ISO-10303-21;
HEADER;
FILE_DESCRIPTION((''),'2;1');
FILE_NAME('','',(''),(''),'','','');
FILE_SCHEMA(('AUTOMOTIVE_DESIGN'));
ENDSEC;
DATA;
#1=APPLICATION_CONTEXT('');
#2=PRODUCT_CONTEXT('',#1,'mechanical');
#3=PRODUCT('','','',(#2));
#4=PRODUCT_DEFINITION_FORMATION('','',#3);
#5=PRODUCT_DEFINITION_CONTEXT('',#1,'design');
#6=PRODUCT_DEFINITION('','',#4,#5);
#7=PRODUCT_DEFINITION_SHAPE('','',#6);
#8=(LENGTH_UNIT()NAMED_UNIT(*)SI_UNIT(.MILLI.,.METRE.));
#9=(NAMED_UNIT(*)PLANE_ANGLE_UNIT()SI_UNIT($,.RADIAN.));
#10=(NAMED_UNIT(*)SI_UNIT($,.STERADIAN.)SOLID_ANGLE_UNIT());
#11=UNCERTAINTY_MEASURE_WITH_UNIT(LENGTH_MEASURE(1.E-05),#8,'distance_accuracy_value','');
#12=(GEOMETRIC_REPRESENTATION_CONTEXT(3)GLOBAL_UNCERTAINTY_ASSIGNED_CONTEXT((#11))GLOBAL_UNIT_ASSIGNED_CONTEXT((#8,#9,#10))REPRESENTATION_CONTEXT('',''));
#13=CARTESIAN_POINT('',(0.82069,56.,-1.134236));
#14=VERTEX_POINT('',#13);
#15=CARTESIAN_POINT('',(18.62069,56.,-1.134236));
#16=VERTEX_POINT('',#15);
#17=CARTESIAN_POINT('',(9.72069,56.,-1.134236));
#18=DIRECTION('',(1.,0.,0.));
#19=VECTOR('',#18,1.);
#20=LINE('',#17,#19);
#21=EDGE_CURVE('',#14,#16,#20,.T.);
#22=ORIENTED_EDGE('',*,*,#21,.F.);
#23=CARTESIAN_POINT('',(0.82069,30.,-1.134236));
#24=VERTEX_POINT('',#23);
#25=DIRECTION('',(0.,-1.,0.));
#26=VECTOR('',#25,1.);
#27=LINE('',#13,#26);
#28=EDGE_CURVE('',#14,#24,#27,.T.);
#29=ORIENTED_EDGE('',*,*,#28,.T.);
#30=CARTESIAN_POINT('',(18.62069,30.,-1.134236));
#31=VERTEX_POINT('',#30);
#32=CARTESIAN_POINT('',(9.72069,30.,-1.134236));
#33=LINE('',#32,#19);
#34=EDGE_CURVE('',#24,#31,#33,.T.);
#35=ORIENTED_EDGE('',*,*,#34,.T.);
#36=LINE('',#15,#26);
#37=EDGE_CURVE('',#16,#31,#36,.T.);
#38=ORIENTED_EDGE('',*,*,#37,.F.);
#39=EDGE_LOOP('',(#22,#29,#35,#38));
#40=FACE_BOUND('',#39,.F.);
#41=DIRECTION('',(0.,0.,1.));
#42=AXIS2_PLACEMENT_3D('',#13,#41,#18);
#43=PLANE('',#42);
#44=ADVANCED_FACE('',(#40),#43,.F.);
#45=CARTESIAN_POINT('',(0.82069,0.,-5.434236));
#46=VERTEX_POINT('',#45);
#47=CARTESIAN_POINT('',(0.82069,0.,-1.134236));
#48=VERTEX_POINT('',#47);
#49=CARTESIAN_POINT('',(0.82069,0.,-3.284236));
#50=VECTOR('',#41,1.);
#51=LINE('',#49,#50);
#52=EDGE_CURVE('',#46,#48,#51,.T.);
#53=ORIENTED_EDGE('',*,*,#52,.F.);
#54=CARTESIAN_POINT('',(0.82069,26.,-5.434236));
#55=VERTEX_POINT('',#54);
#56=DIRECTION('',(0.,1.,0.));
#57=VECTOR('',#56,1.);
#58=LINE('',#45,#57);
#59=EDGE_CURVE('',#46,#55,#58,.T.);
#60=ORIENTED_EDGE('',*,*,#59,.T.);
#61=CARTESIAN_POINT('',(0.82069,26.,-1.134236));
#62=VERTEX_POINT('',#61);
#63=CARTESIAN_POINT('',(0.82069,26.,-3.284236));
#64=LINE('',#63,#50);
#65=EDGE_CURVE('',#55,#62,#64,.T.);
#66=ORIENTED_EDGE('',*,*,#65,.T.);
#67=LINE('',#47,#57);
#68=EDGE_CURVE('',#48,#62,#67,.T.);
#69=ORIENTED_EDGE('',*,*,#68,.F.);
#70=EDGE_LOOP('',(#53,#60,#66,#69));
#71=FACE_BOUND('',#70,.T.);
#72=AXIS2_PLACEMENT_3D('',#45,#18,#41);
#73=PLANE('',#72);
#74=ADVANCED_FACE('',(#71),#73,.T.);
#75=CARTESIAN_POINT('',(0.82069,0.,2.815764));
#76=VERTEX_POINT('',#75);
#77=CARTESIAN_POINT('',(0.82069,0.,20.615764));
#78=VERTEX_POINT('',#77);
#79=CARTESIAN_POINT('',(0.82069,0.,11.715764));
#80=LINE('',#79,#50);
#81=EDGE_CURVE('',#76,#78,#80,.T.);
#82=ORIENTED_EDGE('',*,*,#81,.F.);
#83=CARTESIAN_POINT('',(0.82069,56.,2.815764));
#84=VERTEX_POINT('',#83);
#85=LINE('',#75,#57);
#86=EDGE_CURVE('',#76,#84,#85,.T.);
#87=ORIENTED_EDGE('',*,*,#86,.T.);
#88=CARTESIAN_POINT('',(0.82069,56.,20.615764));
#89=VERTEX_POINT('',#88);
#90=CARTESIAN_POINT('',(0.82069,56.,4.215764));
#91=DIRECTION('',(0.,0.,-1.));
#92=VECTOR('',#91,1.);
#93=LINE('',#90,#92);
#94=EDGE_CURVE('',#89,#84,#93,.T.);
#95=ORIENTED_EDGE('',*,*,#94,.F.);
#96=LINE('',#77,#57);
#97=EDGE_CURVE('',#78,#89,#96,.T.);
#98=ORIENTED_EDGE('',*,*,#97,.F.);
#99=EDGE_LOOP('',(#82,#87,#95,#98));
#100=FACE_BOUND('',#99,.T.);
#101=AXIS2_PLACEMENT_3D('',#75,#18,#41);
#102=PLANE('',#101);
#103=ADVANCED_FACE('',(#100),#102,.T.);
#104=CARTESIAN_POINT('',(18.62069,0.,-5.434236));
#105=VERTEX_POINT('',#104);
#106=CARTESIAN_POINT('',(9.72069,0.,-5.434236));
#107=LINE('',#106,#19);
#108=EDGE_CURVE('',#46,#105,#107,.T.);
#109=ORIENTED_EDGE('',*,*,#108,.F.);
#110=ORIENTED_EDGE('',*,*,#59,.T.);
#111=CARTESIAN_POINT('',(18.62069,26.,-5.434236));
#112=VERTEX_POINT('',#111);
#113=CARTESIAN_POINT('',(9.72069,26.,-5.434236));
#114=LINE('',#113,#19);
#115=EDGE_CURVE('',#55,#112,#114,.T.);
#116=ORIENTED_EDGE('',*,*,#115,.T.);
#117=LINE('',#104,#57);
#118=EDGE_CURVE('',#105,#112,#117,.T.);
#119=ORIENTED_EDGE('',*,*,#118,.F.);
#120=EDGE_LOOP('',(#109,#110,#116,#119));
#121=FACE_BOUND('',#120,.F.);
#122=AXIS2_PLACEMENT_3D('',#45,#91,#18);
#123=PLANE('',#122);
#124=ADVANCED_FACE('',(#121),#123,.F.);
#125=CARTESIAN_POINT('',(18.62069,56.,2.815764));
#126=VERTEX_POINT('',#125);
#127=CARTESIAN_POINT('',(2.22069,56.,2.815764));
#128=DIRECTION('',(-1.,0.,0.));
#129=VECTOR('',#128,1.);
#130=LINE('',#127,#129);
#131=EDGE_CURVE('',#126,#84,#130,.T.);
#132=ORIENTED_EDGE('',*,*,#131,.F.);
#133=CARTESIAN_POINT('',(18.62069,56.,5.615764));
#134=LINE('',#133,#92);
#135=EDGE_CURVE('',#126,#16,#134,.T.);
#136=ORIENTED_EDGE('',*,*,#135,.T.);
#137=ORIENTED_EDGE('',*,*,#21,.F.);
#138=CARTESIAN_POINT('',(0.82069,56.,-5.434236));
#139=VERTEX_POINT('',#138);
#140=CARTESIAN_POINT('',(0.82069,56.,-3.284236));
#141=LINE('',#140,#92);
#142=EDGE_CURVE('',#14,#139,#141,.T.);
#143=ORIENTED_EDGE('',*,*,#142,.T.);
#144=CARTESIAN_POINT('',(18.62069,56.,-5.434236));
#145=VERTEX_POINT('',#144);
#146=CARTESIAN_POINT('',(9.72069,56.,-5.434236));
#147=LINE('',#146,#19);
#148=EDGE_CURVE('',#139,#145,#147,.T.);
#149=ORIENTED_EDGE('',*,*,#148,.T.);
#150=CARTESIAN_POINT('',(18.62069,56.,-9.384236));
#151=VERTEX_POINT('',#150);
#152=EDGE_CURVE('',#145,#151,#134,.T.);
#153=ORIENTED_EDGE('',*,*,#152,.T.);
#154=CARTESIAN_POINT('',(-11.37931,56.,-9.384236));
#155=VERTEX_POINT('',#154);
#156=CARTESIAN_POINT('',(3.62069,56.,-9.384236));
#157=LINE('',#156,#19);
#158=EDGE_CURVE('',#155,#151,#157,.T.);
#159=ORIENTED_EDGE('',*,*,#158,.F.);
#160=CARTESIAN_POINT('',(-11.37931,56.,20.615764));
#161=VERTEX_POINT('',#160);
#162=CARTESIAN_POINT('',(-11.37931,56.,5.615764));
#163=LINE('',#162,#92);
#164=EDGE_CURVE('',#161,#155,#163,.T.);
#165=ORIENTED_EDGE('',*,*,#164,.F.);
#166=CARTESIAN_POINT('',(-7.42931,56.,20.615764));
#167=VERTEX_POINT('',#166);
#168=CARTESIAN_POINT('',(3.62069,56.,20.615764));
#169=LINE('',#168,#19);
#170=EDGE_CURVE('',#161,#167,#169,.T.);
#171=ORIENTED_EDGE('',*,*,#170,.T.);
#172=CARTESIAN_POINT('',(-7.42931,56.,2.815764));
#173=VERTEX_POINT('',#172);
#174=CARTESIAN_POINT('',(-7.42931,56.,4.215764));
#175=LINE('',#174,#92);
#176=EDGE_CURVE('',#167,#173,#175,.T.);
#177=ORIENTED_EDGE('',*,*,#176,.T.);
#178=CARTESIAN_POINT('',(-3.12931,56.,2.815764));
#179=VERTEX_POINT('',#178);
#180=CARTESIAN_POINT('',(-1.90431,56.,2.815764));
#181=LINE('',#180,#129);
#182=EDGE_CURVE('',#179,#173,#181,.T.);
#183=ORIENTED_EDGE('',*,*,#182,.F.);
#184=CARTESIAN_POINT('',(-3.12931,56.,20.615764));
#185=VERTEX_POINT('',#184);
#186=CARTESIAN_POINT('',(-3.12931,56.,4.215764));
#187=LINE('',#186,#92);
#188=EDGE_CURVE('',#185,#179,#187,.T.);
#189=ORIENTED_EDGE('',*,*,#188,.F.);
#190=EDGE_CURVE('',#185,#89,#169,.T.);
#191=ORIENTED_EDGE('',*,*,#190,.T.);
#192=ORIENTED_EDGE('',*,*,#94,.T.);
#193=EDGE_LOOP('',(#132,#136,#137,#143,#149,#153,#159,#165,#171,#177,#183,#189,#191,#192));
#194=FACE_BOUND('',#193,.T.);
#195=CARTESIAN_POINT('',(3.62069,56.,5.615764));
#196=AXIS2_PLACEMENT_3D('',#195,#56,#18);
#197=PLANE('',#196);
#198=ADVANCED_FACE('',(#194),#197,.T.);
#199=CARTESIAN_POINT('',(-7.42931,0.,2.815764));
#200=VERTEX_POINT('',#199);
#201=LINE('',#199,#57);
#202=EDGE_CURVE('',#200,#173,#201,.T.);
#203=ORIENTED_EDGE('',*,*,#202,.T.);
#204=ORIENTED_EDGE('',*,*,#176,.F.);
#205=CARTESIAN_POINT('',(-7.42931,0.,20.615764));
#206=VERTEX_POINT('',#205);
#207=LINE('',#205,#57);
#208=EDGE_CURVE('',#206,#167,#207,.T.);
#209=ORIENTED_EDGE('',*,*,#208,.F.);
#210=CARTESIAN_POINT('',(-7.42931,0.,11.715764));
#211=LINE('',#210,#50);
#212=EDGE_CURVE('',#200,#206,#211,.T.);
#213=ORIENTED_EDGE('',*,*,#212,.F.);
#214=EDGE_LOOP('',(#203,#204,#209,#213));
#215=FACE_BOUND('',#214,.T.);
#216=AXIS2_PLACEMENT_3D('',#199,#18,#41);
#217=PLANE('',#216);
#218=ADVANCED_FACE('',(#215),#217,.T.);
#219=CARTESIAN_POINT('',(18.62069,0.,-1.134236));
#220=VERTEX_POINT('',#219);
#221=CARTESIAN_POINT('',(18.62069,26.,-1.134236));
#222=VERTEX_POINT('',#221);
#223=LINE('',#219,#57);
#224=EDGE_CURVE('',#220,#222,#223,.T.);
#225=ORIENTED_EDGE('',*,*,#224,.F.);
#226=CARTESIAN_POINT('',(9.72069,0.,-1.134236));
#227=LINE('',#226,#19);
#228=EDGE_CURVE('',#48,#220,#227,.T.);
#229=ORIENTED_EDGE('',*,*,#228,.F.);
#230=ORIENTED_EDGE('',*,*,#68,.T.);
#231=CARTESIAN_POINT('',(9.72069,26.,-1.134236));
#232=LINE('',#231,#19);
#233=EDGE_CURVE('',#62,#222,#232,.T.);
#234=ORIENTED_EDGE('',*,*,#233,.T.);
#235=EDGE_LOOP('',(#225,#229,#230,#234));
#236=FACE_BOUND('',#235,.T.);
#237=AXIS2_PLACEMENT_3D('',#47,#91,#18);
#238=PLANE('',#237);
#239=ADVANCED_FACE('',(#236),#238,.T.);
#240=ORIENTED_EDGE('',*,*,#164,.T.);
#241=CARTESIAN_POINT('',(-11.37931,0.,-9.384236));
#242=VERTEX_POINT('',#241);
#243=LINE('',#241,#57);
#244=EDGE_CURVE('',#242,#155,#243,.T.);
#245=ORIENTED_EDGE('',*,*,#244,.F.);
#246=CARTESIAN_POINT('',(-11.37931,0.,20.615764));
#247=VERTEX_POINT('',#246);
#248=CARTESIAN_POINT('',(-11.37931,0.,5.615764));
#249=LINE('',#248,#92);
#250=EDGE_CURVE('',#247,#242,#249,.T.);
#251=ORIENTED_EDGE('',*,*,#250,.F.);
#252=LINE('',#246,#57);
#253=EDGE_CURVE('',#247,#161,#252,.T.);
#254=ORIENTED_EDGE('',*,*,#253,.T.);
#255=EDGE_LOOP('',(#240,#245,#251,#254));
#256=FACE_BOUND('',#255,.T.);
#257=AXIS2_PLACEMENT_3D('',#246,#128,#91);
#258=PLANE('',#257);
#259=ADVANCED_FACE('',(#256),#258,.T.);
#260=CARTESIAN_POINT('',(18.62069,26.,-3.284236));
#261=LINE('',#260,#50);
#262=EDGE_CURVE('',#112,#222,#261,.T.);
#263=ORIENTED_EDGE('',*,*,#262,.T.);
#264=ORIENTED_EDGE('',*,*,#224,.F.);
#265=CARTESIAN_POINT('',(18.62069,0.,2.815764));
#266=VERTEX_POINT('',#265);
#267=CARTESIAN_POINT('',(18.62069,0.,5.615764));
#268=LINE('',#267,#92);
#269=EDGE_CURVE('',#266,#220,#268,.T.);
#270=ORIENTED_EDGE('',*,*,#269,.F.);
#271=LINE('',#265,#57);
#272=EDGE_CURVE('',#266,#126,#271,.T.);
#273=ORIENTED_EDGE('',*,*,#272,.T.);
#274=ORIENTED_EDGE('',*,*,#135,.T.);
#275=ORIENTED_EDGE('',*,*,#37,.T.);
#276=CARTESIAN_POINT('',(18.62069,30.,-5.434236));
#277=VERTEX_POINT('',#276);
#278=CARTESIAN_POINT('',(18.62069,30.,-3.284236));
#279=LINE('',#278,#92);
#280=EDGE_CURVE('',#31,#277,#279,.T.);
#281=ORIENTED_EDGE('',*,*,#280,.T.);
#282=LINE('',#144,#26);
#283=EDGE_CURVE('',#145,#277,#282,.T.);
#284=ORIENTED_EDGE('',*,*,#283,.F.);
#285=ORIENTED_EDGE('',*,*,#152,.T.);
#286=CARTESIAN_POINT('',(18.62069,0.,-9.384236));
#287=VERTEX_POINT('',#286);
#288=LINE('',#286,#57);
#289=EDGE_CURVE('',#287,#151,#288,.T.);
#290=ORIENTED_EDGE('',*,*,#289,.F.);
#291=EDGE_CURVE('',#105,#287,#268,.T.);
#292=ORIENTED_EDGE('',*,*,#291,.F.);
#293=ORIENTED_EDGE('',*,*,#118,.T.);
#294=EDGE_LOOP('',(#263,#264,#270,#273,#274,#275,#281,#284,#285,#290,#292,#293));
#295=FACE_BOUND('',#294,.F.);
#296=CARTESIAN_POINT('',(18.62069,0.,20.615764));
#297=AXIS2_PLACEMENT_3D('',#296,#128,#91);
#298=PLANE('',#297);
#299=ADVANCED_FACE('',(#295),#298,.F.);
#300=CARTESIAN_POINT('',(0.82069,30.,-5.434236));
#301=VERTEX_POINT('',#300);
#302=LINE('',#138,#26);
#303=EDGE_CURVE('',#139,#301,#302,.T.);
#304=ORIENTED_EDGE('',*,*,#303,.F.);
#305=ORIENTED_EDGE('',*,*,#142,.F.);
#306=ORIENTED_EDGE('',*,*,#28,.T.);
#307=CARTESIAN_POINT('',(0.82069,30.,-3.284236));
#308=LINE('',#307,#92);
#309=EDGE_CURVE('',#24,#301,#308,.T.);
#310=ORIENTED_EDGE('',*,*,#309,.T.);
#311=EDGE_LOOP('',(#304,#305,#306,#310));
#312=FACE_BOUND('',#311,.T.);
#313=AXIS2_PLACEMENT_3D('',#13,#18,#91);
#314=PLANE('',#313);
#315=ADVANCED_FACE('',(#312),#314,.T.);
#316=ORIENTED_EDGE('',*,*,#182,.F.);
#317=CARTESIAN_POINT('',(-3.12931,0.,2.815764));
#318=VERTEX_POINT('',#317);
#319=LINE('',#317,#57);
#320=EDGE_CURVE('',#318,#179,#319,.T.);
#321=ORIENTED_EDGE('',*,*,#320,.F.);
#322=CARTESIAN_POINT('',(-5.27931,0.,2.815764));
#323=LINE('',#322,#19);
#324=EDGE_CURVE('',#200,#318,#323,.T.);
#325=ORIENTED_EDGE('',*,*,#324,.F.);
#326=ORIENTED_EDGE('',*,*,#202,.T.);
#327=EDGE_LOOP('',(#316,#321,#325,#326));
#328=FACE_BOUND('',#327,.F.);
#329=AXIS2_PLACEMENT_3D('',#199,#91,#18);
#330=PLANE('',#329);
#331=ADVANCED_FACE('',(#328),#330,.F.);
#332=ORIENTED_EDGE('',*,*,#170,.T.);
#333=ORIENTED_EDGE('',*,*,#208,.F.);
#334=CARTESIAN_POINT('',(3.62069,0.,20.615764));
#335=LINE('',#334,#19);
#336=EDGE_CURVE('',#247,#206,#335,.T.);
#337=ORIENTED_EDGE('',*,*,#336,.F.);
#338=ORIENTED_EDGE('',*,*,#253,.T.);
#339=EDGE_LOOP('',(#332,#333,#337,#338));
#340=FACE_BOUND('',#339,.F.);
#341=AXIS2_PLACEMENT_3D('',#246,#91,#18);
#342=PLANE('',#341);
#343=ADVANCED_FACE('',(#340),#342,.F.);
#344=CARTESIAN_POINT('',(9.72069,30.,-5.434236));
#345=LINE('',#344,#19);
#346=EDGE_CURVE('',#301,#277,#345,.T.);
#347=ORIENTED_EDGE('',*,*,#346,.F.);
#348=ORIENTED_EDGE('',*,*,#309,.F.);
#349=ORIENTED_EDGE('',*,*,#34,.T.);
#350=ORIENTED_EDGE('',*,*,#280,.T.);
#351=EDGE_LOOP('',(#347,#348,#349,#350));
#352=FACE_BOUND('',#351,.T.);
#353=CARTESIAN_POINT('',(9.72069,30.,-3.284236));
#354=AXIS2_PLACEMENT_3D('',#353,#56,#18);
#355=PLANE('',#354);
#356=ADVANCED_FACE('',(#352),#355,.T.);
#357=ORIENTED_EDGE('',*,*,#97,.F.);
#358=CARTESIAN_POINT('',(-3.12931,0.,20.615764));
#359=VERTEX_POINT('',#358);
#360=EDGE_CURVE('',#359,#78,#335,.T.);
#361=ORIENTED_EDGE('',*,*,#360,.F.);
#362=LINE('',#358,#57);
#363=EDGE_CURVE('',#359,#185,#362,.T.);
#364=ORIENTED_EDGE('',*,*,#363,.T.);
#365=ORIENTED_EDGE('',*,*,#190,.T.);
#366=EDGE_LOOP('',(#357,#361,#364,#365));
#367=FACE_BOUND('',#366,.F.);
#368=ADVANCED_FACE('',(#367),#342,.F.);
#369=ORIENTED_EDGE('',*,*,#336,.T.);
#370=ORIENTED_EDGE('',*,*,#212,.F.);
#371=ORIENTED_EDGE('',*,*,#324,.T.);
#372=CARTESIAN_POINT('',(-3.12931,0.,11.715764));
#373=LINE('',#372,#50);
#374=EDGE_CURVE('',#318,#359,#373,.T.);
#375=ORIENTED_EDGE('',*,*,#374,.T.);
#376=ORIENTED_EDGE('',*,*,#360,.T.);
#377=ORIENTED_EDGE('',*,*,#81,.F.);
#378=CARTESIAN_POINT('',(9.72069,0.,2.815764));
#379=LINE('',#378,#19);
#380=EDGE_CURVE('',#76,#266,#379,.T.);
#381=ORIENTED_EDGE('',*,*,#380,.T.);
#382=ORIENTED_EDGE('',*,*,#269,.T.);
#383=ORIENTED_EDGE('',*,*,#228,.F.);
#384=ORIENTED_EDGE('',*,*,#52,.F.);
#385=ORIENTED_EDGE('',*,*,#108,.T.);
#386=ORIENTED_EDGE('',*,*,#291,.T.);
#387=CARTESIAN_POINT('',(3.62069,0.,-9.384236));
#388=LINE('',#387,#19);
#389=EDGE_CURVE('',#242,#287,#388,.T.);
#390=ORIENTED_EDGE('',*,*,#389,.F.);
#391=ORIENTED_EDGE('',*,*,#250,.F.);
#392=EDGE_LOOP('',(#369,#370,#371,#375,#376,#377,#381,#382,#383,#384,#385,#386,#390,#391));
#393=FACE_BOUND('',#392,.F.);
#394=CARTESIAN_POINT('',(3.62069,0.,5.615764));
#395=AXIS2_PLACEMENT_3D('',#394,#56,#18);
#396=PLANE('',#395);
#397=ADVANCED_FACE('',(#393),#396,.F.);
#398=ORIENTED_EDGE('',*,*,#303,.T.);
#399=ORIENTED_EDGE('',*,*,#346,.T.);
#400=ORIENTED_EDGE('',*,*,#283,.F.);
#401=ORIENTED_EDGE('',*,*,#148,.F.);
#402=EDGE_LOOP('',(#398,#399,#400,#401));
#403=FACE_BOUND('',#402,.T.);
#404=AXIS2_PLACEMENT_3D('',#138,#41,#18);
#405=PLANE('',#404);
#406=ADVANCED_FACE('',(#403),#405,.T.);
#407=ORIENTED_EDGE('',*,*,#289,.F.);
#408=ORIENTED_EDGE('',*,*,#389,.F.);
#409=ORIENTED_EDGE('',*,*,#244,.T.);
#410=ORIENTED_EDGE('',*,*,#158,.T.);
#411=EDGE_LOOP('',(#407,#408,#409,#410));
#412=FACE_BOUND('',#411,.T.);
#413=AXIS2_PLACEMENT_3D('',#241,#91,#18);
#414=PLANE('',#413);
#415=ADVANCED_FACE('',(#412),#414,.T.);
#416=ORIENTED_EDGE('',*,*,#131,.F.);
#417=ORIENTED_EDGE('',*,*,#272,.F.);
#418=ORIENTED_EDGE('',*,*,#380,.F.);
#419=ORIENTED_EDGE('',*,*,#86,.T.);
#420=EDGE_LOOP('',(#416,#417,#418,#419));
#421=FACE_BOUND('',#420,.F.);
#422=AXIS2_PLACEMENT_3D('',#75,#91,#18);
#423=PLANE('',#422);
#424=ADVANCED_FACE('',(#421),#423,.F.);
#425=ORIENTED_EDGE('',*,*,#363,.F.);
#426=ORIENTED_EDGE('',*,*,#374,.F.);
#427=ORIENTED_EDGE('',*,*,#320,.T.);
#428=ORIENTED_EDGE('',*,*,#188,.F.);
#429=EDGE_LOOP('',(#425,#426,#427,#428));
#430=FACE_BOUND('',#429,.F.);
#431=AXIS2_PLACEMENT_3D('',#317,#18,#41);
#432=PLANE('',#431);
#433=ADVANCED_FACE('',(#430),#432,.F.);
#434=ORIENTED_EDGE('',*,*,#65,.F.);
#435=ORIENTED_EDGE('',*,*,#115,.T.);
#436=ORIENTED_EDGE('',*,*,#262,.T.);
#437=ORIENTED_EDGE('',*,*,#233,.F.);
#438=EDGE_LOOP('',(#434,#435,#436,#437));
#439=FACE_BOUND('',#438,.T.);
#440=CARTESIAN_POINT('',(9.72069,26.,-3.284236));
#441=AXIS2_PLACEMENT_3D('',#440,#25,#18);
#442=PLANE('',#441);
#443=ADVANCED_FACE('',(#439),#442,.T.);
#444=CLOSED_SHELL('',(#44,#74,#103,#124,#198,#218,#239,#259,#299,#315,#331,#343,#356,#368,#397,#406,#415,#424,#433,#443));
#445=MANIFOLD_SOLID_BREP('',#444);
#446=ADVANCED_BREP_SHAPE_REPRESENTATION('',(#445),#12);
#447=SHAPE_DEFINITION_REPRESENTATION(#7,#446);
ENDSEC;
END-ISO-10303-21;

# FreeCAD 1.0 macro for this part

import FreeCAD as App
import Part
import Sketcher

V = App.Vector
Q = App.Units.Quantity


def add_polygon(sketch, points):
    """Adds a closed chain of lines whose ends are joined by coincident constraints."""
    first, n = sketch.GeometryCount, len(points)
    for a, b in zip(points, points[1:] + points[:1]):
        sketch.addGeometry(Part.LineSegment(App.Vector(*a, 0), App.Vector(*b, 0)), False)
    for i in range(n):
        sketch.addConstraint(Sketcher.Constraint("Coincident", first + i, 2, first + (i + 1) % n, 1))

doc = App.newDocument("Part")
body = doc.addObject("PartDesign::Body", "Body")

# Sketch on XZ plane
sketch1 = body.newObject("Sketcher::SketchObject", "Sketch")
sketch1.AttachmentSupport = (doc.getObject("XZ_Plane"), [""])
sketch1.MapMode = "FlatFace"
add_polygon(sketch1, [(-11, -9), (-11, 21), (19, 21), (19, -9)])  # lines 0-3
sketch1.addConstraint(Sketcher.Constraint("Vertical", 0))
sketch1.addConstraint(Sketcher.Constraint("Horizontal", 1))
sketch1.addConstraint(Sketcher.Constraint("Vertical", 2))
sketch1.addConstraint(Sketcher.Constraint("Horizontal", 3))
sketch1.addConstraint(Sketcher.Constraint("Equal", 3, 0))
sketch1.addConstraint(Sketcher.Constraint("DistanceX", 1, 1, 1, 2, Q("30 mm")))
sketch1.addConstraint(Sketcher.Constraint("DistanceX", 0, 2, -1, 1, Q("11.37931 mm")))
sketch1.addConstraint(Sketcher.Constraint("DistanceY", -1, 1, 0, 2, Q("20.615764 mm")))
pad1 = body.newObject("PartDesign::Pad", "Pad")
pad1.Profile = sketch1
pad1.Length = 56
pad1.Reversed = True

# Sketch on XZ plane
sketch2 = body.newObject("Sketcher::SketchObject", "Sketch001")
sketch2.AttachmentSupport = (doc.getObject("XZ_Plane"), [""])
sketch2.MapMode = "FlatFace"
add_polygon(sketch2, [(0.8, -1.1), (0.8, -5.4), (18.6, -5.4), (18.6, -1.1)])  # lines 0-3
sketch2.addConstraint(Sketcher.Constraint("Vertical", 0))
sketch2.addConstraint(Sketcher.Constraint("Horizontal", 1))
sketch2.addConstraint(Sketcher.Constraint("Vertical", 2))
sketch2.addConstraint(Sketcher.Constraint("Horizontal", 3))
sketch2.addConstraint(Sketcher.Constraint("DistanceX", 1, 1, 1, 2, Q("17.8 mm")))
sketch2.addConstraint(Sketcher.Constraint("DistanceY", 0, 2, 0, 1, Q("4.3 mm")))
sketch2.addConstraint(Sketcher.Constraint("DistanceX", -1, 1, 0, 2, Q("0.82069 mm")))
sketch2.addConstraint(Sketcher.Constraint("DistanceY", 0, 2, -1, 1, Q("5.434236 mm")))
pocket1 = body.newObject("PartDesign::Pocket", "Pocket")
pocket1.Profile = sketch2
pocket1.Length = 26

# Sketch on XZ plane
sketch3 = body.newObject("Sketcher::SketchObject", "Sketch002")
sketch3.AttachmentSupport = (doc.getObject("XZ_Plane"), [""])
sketch3.MapMode = "FlatFace"
add_polygon(sketch3, [(-7.4, 20.6), (-7.4, 2.8), (-3.1, 2.8), (-3.1, 20.6)])  # lines 0-3
add_polygon(sketch3, [(0.8, 20.6), (0.8, 2.8), (18.6, 2.8), (18.6, 20.6)])  # lines 4-7
sketch3.addConstraint(Sketcher.Constraint("Vertical", 0))
sketch3.addConstraint(Sketcher.Constraint("Horizontal", 1))
sketch3.addConstraint(Sketcher.Constraint("Vertical", 2))
sketch3.addConstraint(Sketcher.Constraint("Horizontal", 3))
sketch3.addConstraint(Sketcher.Constraint("Vertical", 4))
sketch3.addConstraint(Sketcher.Constraint("Horizontal", 5))
sketch3.addConstraint(Sketcher.Constraint("Vertical", 6))
sketch3.addConstraint(Sketcher.Constraint("Horizontal", 7))
sketch3.addConstraint(Sketcher.Constraint("Horizontal", 1, 2, 4, 2))
sketch3.addConstraint(Sketcher.Constraint("Horizontal", 3, 2, 6, 2))
sketch3.addConstraint(Sketcher.Constraint("Equal", 7, 0))
sketch3.addConstraint(Sketcher.Constraint("DistanceX", 1, 1, 1, 2, Q("4.3 mm")))
sketch3.addConstraint(Sketcher.Constraint("DistanceX", 5, 1, 5, 2, Q("17.8 mm")))
sketch3.addConstraint(Sketcher.Constraint("DistanceX", 1, 2, 4, 2, Q("3.95 mm")))
sketch3.addConstraint(Sketcher.Constraint("DistanceX", 0, 2, -1, 1, Q("7.42931 mm")))
sketch3.addConstraint(Sketcher.Constraint("DistanceY", -1, 1, 0, 2, Q("2.815764 mm")))
pocket2 = body.newObject("PartDesign::Pocket", "Pocket001")
pocket2.Profile = sketch3
pocket2.Type = "ThroughAll"

# Sketch on XZ plane
sketch4 = body.newObject("Sketcher::SketchObject", "Sketch003")
sketch4.AttachmentSupport = (doc.getObject("XZ_Plane"), [""])
sketch4.MapMode = "FlatFace"
sketch4.AttachmentOffset = App.Placement(V(0, 0, -56), App.Rotation())
add_polygon(sketch4, [(0.8, -5.4), (0.8, -1.1), (18.6, -1.1), (18.6, -5.4)])  # lines 0-3
sketch4.addConstraint(Sketcher.Constraint("Vertical", 0))
sketch4.addConstraint(Sketcher.Constraint("Horizontal", 1))
sketch4.addConstraint(Sketcher.Constraint("Vertical", 2))
sketch4.addConstraint(Sketcher.Constraint("Horizontal", 3))
sketch4.addConstraint(Sketcher.Constraint("DistanceX", 1, 1, 1, 2, Q("17.8 mm")))
sketch4.addConstraint(Sketcher.Constraint("DistanceY", 0, 1, 0, 2, Q("4.3 mm")))
sketch4.addConstraint(Sketcher.Constraint("DistanceX", -1, 1, 0, 2, Q("0.82069 mm")))
sketch4.addConstraint(Sketcher.Constraint("DistanceY", 0, 2, -1, 1, Q("1.134236 mm")))
pocket3 = body.newObject("PartDesign::Pocket", "Pocket002")
pocket3.Profile = sketch4
pocket3.Length = 26
pocket3.Reversed = True

doc.recompute()
